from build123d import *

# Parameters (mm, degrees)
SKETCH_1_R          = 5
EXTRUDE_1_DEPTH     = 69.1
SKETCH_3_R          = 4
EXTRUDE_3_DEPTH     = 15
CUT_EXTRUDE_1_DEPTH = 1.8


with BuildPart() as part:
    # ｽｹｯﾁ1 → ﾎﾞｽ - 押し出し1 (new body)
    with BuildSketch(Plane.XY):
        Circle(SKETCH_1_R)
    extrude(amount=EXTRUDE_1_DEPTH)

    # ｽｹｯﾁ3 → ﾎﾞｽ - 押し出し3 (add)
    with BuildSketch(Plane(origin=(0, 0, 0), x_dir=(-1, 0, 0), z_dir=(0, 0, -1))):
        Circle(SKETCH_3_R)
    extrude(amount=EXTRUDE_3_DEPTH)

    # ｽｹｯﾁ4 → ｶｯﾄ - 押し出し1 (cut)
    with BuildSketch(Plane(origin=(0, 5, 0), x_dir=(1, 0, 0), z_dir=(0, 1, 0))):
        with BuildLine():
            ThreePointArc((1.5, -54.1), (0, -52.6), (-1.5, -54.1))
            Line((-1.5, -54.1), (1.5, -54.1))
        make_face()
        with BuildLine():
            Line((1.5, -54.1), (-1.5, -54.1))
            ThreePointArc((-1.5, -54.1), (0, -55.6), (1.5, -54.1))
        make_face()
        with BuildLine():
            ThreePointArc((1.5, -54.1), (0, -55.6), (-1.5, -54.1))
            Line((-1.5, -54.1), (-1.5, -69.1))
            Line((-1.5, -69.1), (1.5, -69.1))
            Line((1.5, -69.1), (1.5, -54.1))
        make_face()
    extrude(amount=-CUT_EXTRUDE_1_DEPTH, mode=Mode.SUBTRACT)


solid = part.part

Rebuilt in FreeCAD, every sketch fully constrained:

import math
import FreeCAD as App
import Part
import Sketcher

V = App.Vector
Q = App.Units.Quantity

doc = App.newDocument("Part")
params = doc.addObject("Spreadsheet::Sheet", "Params")
for row, (alias, value) in enumerate([
    ("sketch1_diameter", "10 mm"),
    ("pad1_length", "69.1 mm"),
    ("sketch2_diameter", "8 mm"),
    ("pad2_length", "15 mm"),
    ("sketch3_radius", "1.5 mm"),
    ("sketch3_height", "15 mm"),
    ("pocket1_length", "1.8 mm"),
], start=1):
    params.set(f"A{row}", alias)
    params.set(f"B{row}", "=" + value)
    params.setAlias(f"B{row}", alias)

body = doc.addObject("PartDesign::Body", "Body")

# Sketch on XY plane
sketch1 = doc.addObject("Sketcher::SketchObject", "Sketch")
body.addObject(sketch1)
sketch1.AttachmentSupport = (doc.XY_Plane, [""])
sketch1.MapMode = "FlatFace"
sketch1.addGeometry(Part.Circle(V(0, 0, 0), V(0, 0, 1), 5), False)
sketch1.addConstraint([
    Sketcher.Constraint("Coincident", 0, 3, -1, 1),
    Sketcher.Constraint("Diameter", 0, Q("10 mm")),
])
sketch1.setExpression("Constraints[1]", "Params.sketch1_diameter")
pad1 = doc.addObject("PartDesign::Pad", "Pad")
body.addObject(pad1)
pad1.Profile = sketch1
pad1.setExpression("Length", "Params.pad1_length")

# Sketch on XY plane
sketch2 = doc.addObject("Sketcher::SketchObject", "Sketch001")
body.addObject(sketch2)
sketch2.AttachmentSupport = (doc.XY_Plane, [""])
sketch2.MapMode = "FlatFace"
sketch2.addGeometry(Part.Circle(V(0, 0, 0), V(0, 0, 1), 4), False)
sketch2.addConstraint([
    Sketcher.Constraint("Coincident", 0, 3, -1, 1),
    Sketcher.Constraint("Diameter", 0, Q("8 mm")),
])
sketch2.setExpression("Constraints[1]", "Params.sketch2_diameter")
pad2 = doc.addObject("PartDesign::Pad", "Pad001")
body.addObject(pad2)
pad2.Profile = sketch2
pad2.setExpression("Length", "Params.pad2_length")
pad2.Reversed = True

# Sketch on XZ plane
sketch3 = doc.addObject("Sketcher::SketchObject", "Sketch002")
body.addObject(sketch3)
sketch3.AttachmentSupport = (doc.XZ_Plane, [""])
sketch3.MapMode = "FlatFace"
sketch3.AttachmentOffset = App.Placement(V(0, 0, -5), App.Rotation())
sketch3.addGeometry([
    Part.ArcOfCircle(Part.Circle(V(0, 54.1, 0), V(0, 0, 1), 1.5), math.radians(180), math.radians(360)),
    Part.LineSegment(V(-1.5, 54.1, 0), V(-1.5, 69.1, 0)),
    Part.LineSegment(V(-1.5, 69.1, 0), V(1.5, 69.1, 0)),
    Part.LineSegment(V(1.5, 69.1, 0), V(1.5, 54.1, 0)),
], False)
sketch3.addConstraint([
    Sketcher.Constraint("Tangent", 0, 1, 1, 1),
    Sketcher.Constraint("Coincident", 1, 2, 2, 1),
    Sketcher.Constraint("Coincident", 2, 2, 3, 1),
    Sketcher.Constraint("Tangent", 3, 2, 0, 2),
    Sketcher.Constraint("Vertical", 1),
    Sketcher.Constraint("Horizontal", 2),
    Sketcher.Constraint("Vertical", 3),
    Sketcher.Constraint("PointOnObject", 0, 3, -2),
    Sketcher.Constraint("Radius", 0, Q("1.5 mm")),
    Sketcher.Constraint("DistanceY", 1, 1, 1, 2, Q("15 mm")),
    Sketcher.Constraint("DistanceY", -1, 1, 0, 3, Q("54.1 mm")),
])
sketch3.setExpression("Constraints[8]", "Params.sketch3_radius")
sketch3.setExpression("Constraints[9]", "Params.sketch3_height")
pocket1 = doc.addObject("PartDesign::Pocket", "Pocket")
body.addObject(pocket1)
pocket1.Profile = sketch3
pocket1.setExpression("Length", "Params.pocket1_length")
pocket1.Reversed = True

doc.recompute()
